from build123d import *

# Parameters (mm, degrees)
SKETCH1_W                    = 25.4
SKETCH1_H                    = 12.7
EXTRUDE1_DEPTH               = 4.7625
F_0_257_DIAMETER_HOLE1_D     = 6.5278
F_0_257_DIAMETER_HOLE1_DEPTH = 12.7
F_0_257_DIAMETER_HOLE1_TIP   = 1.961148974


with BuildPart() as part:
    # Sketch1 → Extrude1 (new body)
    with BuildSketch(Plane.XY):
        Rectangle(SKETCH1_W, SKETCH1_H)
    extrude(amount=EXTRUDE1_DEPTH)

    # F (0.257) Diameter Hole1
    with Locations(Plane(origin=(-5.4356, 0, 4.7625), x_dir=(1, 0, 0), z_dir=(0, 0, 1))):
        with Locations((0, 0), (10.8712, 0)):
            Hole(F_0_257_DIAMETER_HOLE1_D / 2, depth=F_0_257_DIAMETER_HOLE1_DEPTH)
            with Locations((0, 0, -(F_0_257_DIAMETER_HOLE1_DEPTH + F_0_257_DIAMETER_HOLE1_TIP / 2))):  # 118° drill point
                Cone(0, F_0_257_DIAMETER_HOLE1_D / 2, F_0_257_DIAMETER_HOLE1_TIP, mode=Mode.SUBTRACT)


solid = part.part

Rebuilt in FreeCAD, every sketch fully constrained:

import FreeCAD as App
import Part
import Sketcher
from FreeCAD import Vector
Q = App.Units.Quantity


def add_polygon(sketch, points):
    """Adds a closed chain of lines whose ends are joined by coincident constraints."""
    first, n = sketch.GeometryCount, len(points)
    for a, b in zip(points, points[1:] + points[:1]):
        sketch.addGeometry(Part.LineSegment(App.Vector(*a, 0), App.Vector(*b, 0)), False)
    for i in range(n):
        sketch.addConstraint(Sketcher.Constraint("Coincident", first + i, 2, first + (i + 1) % n, 1))

doc = App.newDocument("Part")
body = doc.addObject("PartDesign::Body", "Body")

# Sketch on XY plane
sketch1 = body.newObject("Sketcher::SketchObject", "Sketch")
sketch1.AttachmentSupport = (doc.getObject("XY_Plane"), [""])
sketch1.MapMode = "FlatFace"
add_polygon(sketch1, [(-12.7, 6.35), (-12.7, -6.35), (12.7, -6.35), (12.7, 6.35)])  # lines 0-3
sketch1.addConstraint([
    Sketcher.Constraint("Vertical", 0),
    Sketcher.Constraint("Horizontal", 1),
    Sketcher.Constraint("Vertical", 2),
    Sketcher.Constraint("Horizontal", 3),
    Sketcher.Constraint("Symmetric", 0, 2, 2, 2, -1, 1),
    Sketcher.Constraint("DistanceX", 1, 1, 1, 2, Q("1 in")),
    Sketcher.Constraint("DistanceY", 0, 2, 0, 1, Q("0.5 in")),
])
pad1 = body.newObject("PartDesign::Pad", "Pad")
pad1.Profile = sketch1
pad1.Length = Q("0.1875 in")

# Sketch on XY plane
sketch2 = body.newObject("Sketcher::SketchObject", "Sketch001")
sketch2.AttachmentSupport = (doc.getObject("XY_Plane"), [""])
sketch2.MapMode = "FlatFace"
sketch2.AttachmentOffset = App.Placement(Vector(0, 0, 0.1875 * 25.4), App.Rotation())
sketch2.addGeometry([
    Part.Circle(Vector(-5.4356, 0, 0), Vector(0, 0, 1), 3.2639),
    Part.Circle(Vector(5.4356, 0, 0), Vector(0, 0, 1), 3.2639),
], False)
sketch2.addConstraint([
    Sketcher.Constraint("Equal", 0, 1),
    Sketcher.Constraint("Symmetric", 0, 3, 1, 3, -1, 1),
    Sketcher.Constraint("PointOnObject", 0, 3, -1),
    Sketcher.Constraint("Diameter", 0, Q("0.257 in")),
    Sketcher.Constraint("DistanceX", 0, 3, -1, 1, Q("0.214 in")),
])
doc.recompute()
hole = body.newObject("PartDesign::Hole", "Hole")
hole.Profile = sketch2
hole.ThreadType = "None"
hole.Diameter = Q("0.257 in")
hole.DepthType = "Dimension"
hole.Depth = Q("0.5 in")
hole.DrillPoint = "Angled"
hole.DrillPointAngle = 118

doc.recompute()
